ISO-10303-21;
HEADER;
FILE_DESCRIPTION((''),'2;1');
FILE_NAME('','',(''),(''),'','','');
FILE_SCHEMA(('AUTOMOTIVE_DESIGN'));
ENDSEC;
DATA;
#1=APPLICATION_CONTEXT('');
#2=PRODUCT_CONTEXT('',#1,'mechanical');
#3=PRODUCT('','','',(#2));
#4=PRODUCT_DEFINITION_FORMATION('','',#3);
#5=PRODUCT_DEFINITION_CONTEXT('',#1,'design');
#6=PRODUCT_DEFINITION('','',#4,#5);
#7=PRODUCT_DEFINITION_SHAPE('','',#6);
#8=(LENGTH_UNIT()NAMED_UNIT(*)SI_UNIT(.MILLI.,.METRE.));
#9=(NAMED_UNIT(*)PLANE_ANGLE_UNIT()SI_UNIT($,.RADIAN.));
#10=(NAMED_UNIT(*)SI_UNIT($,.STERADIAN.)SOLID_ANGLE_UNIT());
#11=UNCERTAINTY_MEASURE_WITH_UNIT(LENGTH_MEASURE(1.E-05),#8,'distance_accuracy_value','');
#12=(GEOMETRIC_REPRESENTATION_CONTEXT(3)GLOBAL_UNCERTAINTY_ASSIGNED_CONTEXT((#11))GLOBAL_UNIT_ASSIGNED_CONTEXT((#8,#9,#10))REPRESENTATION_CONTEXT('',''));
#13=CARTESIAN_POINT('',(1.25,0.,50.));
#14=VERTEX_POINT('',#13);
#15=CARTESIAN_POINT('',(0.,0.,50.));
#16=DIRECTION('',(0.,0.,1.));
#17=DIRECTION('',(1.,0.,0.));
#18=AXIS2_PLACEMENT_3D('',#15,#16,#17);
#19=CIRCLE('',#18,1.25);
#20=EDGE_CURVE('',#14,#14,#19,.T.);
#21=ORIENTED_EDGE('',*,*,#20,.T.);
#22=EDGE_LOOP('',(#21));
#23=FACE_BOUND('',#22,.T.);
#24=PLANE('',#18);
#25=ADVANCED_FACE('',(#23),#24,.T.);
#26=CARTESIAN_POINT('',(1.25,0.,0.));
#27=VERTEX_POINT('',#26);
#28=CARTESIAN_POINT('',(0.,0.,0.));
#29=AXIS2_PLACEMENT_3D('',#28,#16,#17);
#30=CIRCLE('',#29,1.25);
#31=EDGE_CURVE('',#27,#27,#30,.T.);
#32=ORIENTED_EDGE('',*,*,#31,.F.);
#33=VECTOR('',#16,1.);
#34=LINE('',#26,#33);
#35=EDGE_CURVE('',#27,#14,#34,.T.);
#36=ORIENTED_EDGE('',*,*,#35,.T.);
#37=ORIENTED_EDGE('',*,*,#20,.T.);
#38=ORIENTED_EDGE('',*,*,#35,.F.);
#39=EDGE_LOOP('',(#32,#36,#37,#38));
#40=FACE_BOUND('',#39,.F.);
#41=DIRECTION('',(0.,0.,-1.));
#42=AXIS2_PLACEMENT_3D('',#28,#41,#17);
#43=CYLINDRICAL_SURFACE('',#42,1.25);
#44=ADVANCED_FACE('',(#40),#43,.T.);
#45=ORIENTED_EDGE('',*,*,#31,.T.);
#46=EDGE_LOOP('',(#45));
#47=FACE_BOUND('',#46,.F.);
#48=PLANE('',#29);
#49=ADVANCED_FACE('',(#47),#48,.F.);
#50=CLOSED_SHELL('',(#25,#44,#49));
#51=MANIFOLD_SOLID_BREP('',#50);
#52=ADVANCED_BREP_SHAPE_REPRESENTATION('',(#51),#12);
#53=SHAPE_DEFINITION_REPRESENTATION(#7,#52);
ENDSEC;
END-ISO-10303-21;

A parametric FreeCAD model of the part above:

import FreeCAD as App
import Part
import Sketcher

V = App.Vector
Q = App.Units.Quantity

doc = App.newDocument("Part")
body = doc.addObject("PartDesign::Body", "Body")

# Sketch on XY plane
sketch1 = body.newObject("Sketcher::SketchObject", "Sketch")
sketch1.AttachmentSupport = (doc.getObject("XY_Plane"), [""])
sketch1.MapMode = "FlatFace"
sketch1.addGeometry(Part.Circle(V(0, 0, 0), V(0, 0, 1), 1.2), False)
sketch1.addConstraint([
    Sketcher.Constraint("Coincident", 0, 3, -1, 1),
    Sketcher.Constraint("Diameter", 0, Q("2.5 mm")),
])
pad1 = body.newObject("PartDesign::Pad", "Pad")
pad1.Profile = sketch1
pad1.Length = 50

doc.recompute()
